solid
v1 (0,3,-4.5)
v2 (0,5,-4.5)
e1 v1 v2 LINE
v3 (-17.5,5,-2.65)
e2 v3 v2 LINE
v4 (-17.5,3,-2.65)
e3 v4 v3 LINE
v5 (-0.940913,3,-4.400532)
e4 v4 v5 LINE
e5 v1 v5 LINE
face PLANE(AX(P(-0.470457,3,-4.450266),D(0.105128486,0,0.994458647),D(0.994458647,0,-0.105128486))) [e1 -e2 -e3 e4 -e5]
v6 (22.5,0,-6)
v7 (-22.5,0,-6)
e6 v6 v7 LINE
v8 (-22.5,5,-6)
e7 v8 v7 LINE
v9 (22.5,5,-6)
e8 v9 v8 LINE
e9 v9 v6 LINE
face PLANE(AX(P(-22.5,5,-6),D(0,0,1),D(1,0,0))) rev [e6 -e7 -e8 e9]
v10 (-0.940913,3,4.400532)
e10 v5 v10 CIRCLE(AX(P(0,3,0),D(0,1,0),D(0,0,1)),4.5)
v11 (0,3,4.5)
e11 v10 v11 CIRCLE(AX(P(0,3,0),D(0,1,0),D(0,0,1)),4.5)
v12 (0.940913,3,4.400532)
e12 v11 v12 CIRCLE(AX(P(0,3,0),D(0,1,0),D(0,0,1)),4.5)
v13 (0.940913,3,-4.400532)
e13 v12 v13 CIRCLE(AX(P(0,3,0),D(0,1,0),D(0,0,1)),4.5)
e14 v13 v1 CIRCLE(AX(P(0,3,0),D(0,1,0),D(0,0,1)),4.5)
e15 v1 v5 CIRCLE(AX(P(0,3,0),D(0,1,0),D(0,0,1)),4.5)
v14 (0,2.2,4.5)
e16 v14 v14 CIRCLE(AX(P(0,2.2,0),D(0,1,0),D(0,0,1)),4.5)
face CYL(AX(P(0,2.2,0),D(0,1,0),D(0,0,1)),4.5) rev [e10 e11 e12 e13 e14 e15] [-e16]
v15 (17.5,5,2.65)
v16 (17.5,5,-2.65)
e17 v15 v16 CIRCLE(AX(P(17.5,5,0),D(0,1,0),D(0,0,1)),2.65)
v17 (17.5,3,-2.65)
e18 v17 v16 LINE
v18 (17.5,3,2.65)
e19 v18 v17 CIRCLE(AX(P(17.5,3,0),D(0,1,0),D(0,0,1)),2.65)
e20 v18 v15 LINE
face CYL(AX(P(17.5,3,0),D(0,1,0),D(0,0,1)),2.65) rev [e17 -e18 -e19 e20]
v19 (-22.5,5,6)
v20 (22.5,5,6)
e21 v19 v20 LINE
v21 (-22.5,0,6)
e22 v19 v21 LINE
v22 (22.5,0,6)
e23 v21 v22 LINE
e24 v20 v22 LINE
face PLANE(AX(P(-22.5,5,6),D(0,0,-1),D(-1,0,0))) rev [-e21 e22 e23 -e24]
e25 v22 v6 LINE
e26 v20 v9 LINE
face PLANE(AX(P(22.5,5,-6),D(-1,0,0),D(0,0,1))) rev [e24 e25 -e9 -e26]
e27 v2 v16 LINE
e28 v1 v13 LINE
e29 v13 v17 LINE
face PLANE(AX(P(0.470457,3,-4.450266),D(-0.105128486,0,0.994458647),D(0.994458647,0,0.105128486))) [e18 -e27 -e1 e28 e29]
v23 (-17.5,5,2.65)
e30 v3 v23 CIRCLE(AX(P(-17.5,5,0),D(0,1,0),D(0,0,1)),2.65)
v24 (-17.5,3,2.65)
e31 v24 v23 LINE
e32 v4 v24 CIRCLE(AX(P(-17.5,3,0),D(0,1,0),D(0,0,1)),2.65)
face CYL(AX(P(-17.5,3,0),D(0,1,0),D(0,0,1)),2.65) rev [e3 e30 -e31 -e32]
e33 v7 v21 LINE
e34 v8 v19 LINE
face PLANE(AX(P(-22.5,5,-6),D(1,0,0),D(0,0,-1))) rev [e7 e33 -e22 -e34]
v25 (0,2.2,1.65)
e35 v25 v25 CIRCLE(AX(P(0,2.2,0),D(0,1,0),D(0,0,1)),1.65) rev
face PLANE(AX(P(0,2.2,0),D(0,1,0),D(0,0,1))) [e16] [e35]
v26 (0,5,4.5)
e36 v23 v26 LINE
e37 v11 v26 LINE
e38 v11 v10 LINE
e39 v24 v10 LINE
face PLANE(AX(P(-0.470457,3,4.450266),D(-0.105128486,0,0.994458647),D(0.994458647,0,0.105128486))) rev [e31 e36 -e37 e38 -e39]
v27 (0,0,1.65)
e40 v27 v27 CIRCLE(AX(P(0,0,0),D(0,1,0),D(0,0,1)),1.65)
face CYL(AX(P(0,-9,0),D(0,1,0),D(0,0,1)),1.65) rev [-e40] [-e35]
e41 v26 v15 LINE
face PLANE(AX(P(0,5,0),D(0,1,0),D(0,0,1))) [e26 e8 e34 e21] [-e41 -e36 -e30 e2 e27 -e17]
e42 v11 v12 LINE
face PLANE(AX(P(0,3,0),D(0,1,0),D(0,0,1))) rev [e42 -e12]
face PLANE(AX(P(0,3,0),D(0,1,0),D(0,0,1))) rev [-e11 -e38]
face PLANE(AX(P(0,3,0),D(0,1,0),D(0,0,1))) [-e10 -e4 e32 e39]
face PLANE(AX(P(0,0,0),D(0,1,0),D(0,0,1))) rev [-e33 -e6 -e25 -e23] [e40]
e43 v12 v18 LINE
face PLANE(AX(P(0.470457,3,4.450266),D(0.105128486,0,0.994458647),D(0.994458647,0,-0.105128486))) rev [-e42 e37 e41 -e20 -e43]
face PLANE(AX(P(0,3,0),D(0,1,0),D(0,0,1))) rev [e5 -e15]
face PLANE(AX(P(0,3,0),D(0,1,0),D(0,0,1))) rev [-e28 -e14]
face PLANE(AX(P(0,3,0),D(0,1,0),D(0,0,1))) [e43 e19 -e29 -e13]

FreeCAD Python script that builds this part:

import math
import FreeCAD as App
import Part
import Sketcher

V = App.Vector
Q = App.Units.Quantity

doc = App.newDocument("Part")
body = doc.addObject("PartDesign::Body", "Body")

# Sketch on XZ plane
sketch1 = body.newObject("Sketcher::SketchObject", "Sketch")
sketch1.AttachmentSupport = (doc.getObject("XZ_Plane"), [""])
sketch1.MapMode = "FlatFace"
sketch1.addGeometry([
    Part.LineSegment(V(-22, -6, 0), V(-22, 6, 0)),
    Part.LineSegment(V(-22, 6, 0), V(22, 6, 0)),
    Part.LineSegment(V(22, 6, 0), V(22, -6, 0)),
    Part.LineSegment(V(22, -6, 0), V(-22, -6, 0)),
], False)
sketch1.addConstraint([
    Sketcher.Constraint("Coincident", 0, 2, 1, 1),
    Sketcher.Constraint("Coincident", 1, 2, 2, 1),
    Sketcher.Constraint("Coincident", 2, 2, 3, 1),
    Sketcher.Constraint("Coincident", 3, 2, 0, 1),
    Sketcher.Constraint("Vertical", 0),
    Sketcher.Constraint("Horizontal", 1),
    Sketcher.Constraint("Vertical", 2),
    Sketcher.Constraint("Horizontal", 3),
    Sketcher.Constraint("Symmetric", 0, 2, 2, 2, -1, 1),
    Sketcher.Constraint("DistanceX", 1, 1, 1, 2, Q("45 mm")),
    Sketcher.Constraint("DistanceY", 0, 1, 0, 2, Q("12 mm")),
])
pad1 = body.newObject("PartDesign::Pad", "Pad")
pad1.Profile = sketch1
pad1.Length = 5
pad1.Reversed = True

# Sketch on XZ plane
sketch2 = body.newObject("Sketcher::SketchObject", "Sketch001")
sketch2.AttachmentSupport = (doc.getObject("XZ_Plane"), [""])
sketch2.MapMode = "FlatFace"
sketch2.AttachmentOffset = App.Placement(V(0, 0, -5), App.Rotation())
sketch2.addGeometry([
    Part.ArcOfCircle(Part.Circle(V(-17.5, 0, 0), V(0, 0, 1), 2.6), math.radians(90), math.radians(270)),  # 0
    Part.LineSegment(V(-17.5, 2.6, 0), V(-0.9, 4.4, 0)),  # 1
    Part.LineSegment(V(-0.9, 4.4, 0), V(0, 4.5, 0)),  # 2
    Part.LineSegment(V(0, 4.5, 0), V(0.9, 4.4, 0)),  # 3
    Part.LineSegment(V(0.9, 4.4, 0), V(17.5, 2.6, 0)),  # 4
    Part.ArcOfCircle(Part.Circle(V(17.5, 0, 0), V(0, 0, 1), 2.6), math.radians(-90), math.radians(90)),  # 5
    Part.LineSegment(V(17.5, -2.6, 0), V(0.9, -4.4, 0)),  # 6
    Part.LineSegment(V(0.9, -4.4, 0), V(0, -4.5, 0)),  # 7
    Part.LineSegment(V(0, -4.5, 0), V(-0.9, -4.4, 0)),  # 8
    Part.LineSegment(V(-0.9, -4.4, 0), V(-17.5, -2.6, 0)),  # 9
], False)
sketch2.addConstraint([
    Sketcher.Constraint("Coincident", 0, 1, 1, 1),
    Sketcher.Constraint("Coincident", 1, 2, 2, 1),
    Sketcher.Constraint("Coincident", 2, 2, 3, 1),
    Sketcher.Constraint("Coincident", 3, 2, 4, 1),
    Sketcher.Constraint("Coincident", 4, 2, 5, 2),
    Sketcher.Constraint("Coincident", 5, 1, 6, 1),
    Sketcher.Constraint("Coincident", 6, 2, 7, 1),
    Sketcher.Constraint("Coincident", 7, 2, 8, 1),
    Sketcher.Constraint("Coincident", 8, 2, 9, 1),
    Sketcher.Constraint("Coincident", 9, 2, 0, 2),
    Sketcher.Constraint("Equal", 0, 5),
    Sketcher.Constraint("Symmetric", 0, 3, 5, 3, -1, 1),
    Sketcher.Constraint("Symmetric", 1, 2, 6, 2, -1, 1),
    Sketcher.Constraint("Symmetric", 2, 2, 7, 2, -1, 1),
    Sketcher.Constraint("Symmetric", 3, 2, 8, 2, -1, 1),
    Sketcher.Constraint("Symmetric", 1, 2, 3, 2, -2),
    Sketcher.Constraint("Symmetric", 0, 1, 4, 2, -2),
    Sketcher.Constraint("PointOnObject", 2, 2, -2),
    Sketcher.Constraint("Parallel", 1, 2),
    Sketcher.Constraint("Parallel", 2, 6),
    Sketcher.Constraint("Parallel", 8, 9),
    Sketcher.Constraint("Vertical", 5, 3, 4, 2),
    Sketcher.Constraint("Radius", 0, Q("2.65 mm")),
    Sketcher.Constraint("DistanceX", 0, 3, 5, 3, Q("35 mm")),
    Sketcher.Constraint("DistanceY", 7, 2, 2, 2, Q("9 mm")),
    Sketcher.Constraint("Distance", 1, Q("16.651358 mm")),
])
pocket1 = body.newObject("PartDesign::Pocket", "Pocket")
pocket1.Profile = sketch2
pocket1.Length = 2
pocket1.Reversed = True

# Sketch on XZ plane
sketch3 = body.newObject("Sketcher::SketchObject", "Sketch002")
sketch3.AttachmentSupport = (doc.getObject("XZ_Plane"), [""])
sketch3.MapMode = "FlatFace"
sketch3.AttachmentOffset = App.Placement(V(0, 0, -3), App.Rotation())
sketch3.addGeometry(Part.Circle(V(0, 0, 0), V(0, 0, 1), 1.6), False)
sketch3.addConstraint([
    Sketcher.Constraint("Coincident", 0, 3, -1, 1),
    Sketcher.Constraint("Diameter", 0, Q("3.3 mm")),
])
pocket2 = body.newObject("PartDesign::Pocket", "Pocket001")
pocket2.Profile = sketch3
pocket2.Length = 12
pocket2.Reversed = True

# Sketch on XZ plane
sketch4 = body.newObject("Sketcher::SketchObject", "Sketch003")
sketch4.AttachmentSupport = (doc.getObject("XZ_Plane"), [""])
sketch4.MapMode = "FlatFace"
sketch4.AttachmentOffset = App.Placement(V(0, 0, -3), App.Rotation())
sketch4.addGeometry(Part.Circle(V(0, 0, 0), V(0, 0, 1), 4.5), False)
sketch4.addConstraint([
    Sketcher.Constraint("Coincident", 0, 3, -1, 1),
    Sketcher.Constraint("Diameter", 0, Q("9 mm")),
])
pocket3 = body.newObject("PartDesign::Pocket", "Pocket002")
pocket3.Profile = sketch4
pocket3.Length = 0.8
pocket3.Reversed = True

doc.recompute()
